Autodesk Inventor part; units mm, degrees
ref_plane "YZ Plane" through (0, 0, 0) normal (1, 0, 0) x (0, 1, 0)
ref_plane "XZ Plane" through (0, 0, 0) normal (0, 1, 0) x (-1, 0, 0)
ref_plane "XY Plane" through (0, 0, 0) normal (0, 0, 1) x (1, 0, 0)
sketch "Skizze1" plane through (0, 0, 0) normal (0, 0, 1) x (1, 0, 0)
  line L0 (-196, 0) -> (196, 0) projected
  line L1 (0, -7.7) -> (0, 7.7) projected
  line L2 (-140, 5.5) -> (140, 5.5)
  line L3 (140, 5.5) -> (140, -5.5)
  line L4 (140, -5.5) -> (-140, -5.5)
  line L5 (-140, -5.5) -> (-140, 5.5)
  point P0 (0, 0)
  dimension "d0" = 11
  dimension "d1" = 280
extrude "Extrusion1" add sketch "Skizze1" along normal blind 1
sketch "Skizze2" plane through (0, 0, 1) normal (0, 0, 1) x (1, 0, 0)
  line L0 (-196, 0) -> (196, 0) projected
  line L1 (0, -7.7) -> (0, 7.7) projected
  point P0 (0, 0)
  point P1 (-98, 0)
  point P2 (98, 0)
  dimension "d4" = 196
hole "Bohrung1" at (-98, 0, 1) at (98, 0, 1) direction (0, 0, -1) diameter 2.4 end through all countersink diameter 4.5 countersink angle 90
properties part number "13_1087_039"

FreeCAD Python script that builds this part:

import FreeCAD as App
import Part
import Sketcher

V = App.Vector
Q = App.Units.Quantity

doc = App.newDocument("Part")
body = doc.addObject("PartDesign::Body", "Body")

sketch1 = body.newObject("Sketcher::SketchObject", "Sketch")
sketch1.AttachmentSupport = (doc.getObject("XY_Plane"), [""])
sketch1.MapMode = "FlatFace"
sketch1.addGeometry(Part.LineSegment(V(-140, 6, 0), V(-140, -6, 0)), False)
sketch1.addGeometry(Part.LineSegment(V(-140, -6, 0), V(140, -6, 0)), False)
sketch1.addGeometry(Part.LineSegment(V(140, -6, 0), V(140, 6, 0)), False)
sketch1.addGeometry(Part.LineSegment(V(140, 6, 0), V(-140, 6, 0)), False)
sketch1.addConstraint(Sketcher.Constraint("Coincident", 0, 2, 1, 1))
sketch1.addConstraint(Sketcher.Constraint("Coincident", 1, 2, 2, 1))
sketch1.addConstraint(Sketcher.Constraint("Coincident", 2, 2, 3, 1))
sketch1.addConstraint(Sketcher.Constraint("Coincident", 3, 2, 0, 1))
sketch1.addConstraint(Sketcher.Constraint("Vertical", 0))
sketch1.addConstraint(Sketcher.Constraint("Horizontal", 1))
sketch1.addConstraint(Sketcher.Constraint("Vertical", 2))
sketch1.addConstraint(Sketcher.Constraint("Horizontal", 3))
sketch1.addConstraint(Sketcher.Constraint("Symmetric", 0, 2, 2, 2, -1, 1))
sketch1.addConstraint(Sketcher.Constraint("DistanceX", 1, 1, 1, 2, Q("280 mm")))
sketch1.addConstraint(Sketcher.Constraint("DistanceY", 0, 2, 0, 1, Q("11 mm")))
pad1 = body.newObject("PartDesign::Pad", "Pad")
pad1.Profile = sketch1
pad1.Length = 1

sketch2 = body.newObject("Sketcher::SketchObject", "Sketch001")
sketch2.AttachmentSupport = (doc.getObject("XY_Plane"), [""])
sketch2.MapMode = "FlatFace"
sketch2.AttachmentOffset = App.Placement(V(0, 0, 1), App.Rotation())
sketch2.addGeometry(Part.Circle(V(-98, 0, 0), V(0, 0, 1), 1.2), False)
sketch2.addGeometry(Part.Circle(V(98, 0, 0), V(0, 0, 1), 1.2), False)
sketch2.addConstraint(Sketcher.Constraint("Equal", 0, 1))
sketch2.addConstraint(Sketcher.Constraint("Symmetric", 0, 3, 1, 3, -1, 1))
sketch2.addConstraint(Sketcher.Constraint("PointOnObject", 0, 3, -1))
sketch2.addConstraint(Sketcher.Constraint("Diameter", 0, Q("2.4 mm")))
sketch2.addConstraint(Sketcher.Constraint("DistanceX", 0, 3, -1, 1, Q("98 mm")))
doc.recompute()
hole = body.newObject("PartDesign::Hole", "Hole")
hole.Profile = sketch2
hole.ThreadType = "None"
hole.Diameter = 2.4
hole.DepthType = "ThroughAll"
hole.HoleCutType = "Countersink"
hole.HoleCutDiameter = 4.5
hole.HoleCutCountersinkAngle = 90

doc.recompute()
